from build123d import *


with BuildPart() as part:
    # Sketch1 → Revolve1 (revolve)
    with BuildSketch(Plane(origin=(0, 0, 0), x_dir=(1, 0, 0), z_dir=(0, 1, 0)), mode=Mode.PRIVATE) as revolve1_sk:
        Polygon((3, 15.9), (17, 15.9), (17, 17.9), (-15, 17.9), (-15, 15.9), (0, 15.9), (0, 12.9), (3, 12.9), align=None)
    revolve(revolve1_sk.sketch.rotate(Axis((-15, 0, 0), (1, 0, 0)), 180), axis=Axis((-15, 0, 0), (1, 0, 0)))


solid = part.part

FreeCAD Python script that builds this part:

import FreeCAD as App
import Part
import Sketcher
from FreeCAD import Vector

doc = App.newDocument("Part")
body = doc.addObject("PartDesign::Body", "Body")

# Sketch on XZ plane
sketch1 = doc.addObject("Sketcher::SketchObject", "Sketch")
body.addObject(sketch1)
sketch1.AttachmentSupport = (doc.XZ_Plane, [""])
sketch1.MapMode = "FlatFace"
sketch1.addGeometry(Part.LineSegment(Vector(3, -15.9, 0), Vector(17, -15.9, 0)), False)
sketch1.addGeometry(Part.LineSegment(Vector(17, -15.9, 0), Vector(17, -17.9, 0)), False)
sketch1.addGeometry(Part.LineSegment(Vector(17, -17.9, 0), Vector(-15, -17.9, 0)), False)
sketch1.addGeometry(Part.LineSegment(Vector(-15, -17.9, 0), Vector(-15, -15.9, 0)), False)
sketch1.addGeometry(Part.LineSegment(Vector(-15, -15.9, 0), Vector(0, -15.9, 0)), False)
sketch1.addGeometry(Part.LineSegment(Vector(0, -15.9, 0), Vector(0, -12.9, 0)), False)
sketch1.addGeometry(Part.LineSegment(Vector(0, -12.9, 0), Vector(3, -12.9, 0)), False)
sketch1.addGeometry(Part.LineSegment(Vector(3, -12.9, 0), Vector(3, -15.9, 0)), False)
sketch1.addConstraint(Sketcher.Constraint("Coincident", 0, 2, 1, 1))
sketch1.addConstraint(Sketcher.Constraint("Coincident", 1, 2, 2, 1))
sketch1.addConstraint(Sketcher.Constraint("Coincident", 2, 2, 3, 1))
sketch1.addConstraint(Sketcher.Constraint("Coincident", 3, 2, 4, 1))
sketch1.addConstraint(Sketcher.Constraint("Coincident", 4, 2, 5, 1))
sketch1.addConstraint(Sketcher.Constraint("Coincident", 5, 2, 6, 1))
sketch1.addConstraint(Sketcher.Constraint("Coincident", 6, 2, 7, 1))
sketch1.addConstraint(Sketcher.Constraint("Coincident", 7, 2, 0, 1))
sketch1.addConstraint(Sketcher.Constraint("Horizontal", 0))
sketch1.addConstraint(Sketcher.Constraint("Vertical", 1))
sketch1.addConstraint(Sketcher.Constraint("Horizontal", 2))
sketch1.addConstraint(Sketcher.Constraint("Vertical", 3))
sketch1.addConstraint(Sketcher.Constraint("Horizontal", 4))
sketch1.addConstraint(Sketcher.Constraint("Vertical", 5))
sketch1.addConstraint(Sketcher.Constraint("Horizontal", 6))
sketch1.addConstraint(Sketcher.Constraint("Vertical", 7))
sketch1.addConstraint(Sketcher.Constraint("PointOnObject", 4, 2, -2))
sketch1.addConstraint(Sketcher.Constraint("Horizontal", 0, 2, 3, 2))
sketch1.addConstraint(Sketcher.Constraint("Equal", 6, 5))
sketch1.addConstraint(Sketcher.Constraint("DistanceX", 0, 1, 0, 2, 14.0))
sketch1.addConstraint(Sketcher.Constraint("DistanceX", 2, 2, 2, 1, 32.0))
sketch1.addConstraint(Sketcher.Constraint("DistanceX", 4, 1, 4, 2, 15.0))
sketch1.addConstraint(Sketcher.Constraint("DistanceY", 1, 2, 1, 1, 2.0))
sketch1.addConstraint(Sketcher.Constraint("DistanceY", 0, 2, -1, 1, 15.9))
revolution = doc.addObject("PartDesign::Revolution", "Revolution")
body.addObject(revolution)
revolution.Profile = sketch1
revolution.ReferenceAxis = (sketch1, ["H_Axis"])
revolution.Angle = 360

doc.recompute()
